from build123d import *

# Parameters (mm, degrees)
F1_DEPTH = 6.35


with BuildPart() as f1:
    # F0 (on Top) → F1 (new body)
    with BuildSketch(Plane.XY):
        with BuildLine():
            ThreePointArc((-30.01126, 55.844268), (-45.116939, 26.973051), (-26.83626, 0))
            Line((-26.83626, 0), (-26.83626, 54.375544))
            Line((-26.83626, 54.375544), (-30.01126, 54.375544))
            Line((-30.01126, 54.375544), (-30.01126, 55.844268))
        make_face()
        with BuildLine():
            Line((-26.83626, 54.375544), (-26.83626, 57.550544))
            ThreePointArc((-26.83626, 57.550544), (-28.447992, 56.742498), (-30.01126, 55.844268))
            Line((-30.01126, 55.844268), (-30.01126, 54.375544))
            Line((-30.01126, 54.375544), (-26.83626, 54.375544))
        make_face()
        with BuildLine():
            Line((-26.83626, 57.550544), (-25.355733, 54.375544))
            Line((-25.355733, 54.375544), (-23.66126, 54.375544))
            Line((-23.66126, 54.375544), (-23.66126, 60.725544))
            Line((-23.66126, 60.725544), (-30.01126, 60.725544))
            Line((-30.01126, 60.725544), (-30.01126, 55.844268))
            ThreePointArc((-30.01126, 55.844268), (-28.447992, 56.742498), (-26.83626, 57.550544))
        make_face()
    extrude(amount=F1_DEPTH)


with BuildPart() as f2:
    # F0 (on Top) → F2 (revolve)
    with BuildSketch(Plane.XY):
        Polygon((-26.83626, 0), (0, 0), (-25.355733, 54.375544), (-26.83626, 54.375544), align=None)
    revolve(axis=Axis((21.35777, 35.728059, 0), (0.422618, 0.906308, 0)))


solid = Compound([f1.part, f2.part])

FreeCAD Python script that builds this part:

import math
import FreeCAD as App
import Part
import Sketcher
from FreeCAD import Vector
Q = App.Units.Quantity

doc = App.newDocument("Part")
params = doc.addObject("Spreadsheet::Sheet", "Params")
for row, (alias, value) in enumerate([
    ("sketch1_radius", "1.25 in"),
    ("sketch1_width", "0.25 in"),
    ("pad1_length", "0.25 in"),
    ("revolution_angle", "360 deg"),
], start=1):
    params.set(f"A{row}", alias)
    params.set(f"B{row}", "=" + value)
    params.setAlias(f"B{row}", alias)

body = doc.addObject("PartDesign::Body", "Body")

sketch1 = doc.addObject("Sketcher::SketchObject", "Sketch")
body.addObject(sketch1)
sketch1.AttachmentSupport = (doc.XY_Plane, [""])
sketch1.MapMode = "FlatFace"
sketch1.addGeometry(Part.ArcOfCircle(Part.Circle(Vector(-13.41813, 28.775272, 0), Vector(0, 0, 1), 31.75), math.radians(121.508044), math.radians(244.999999)), False)
sketch1.addGeometry(Part.LineSegment(Vector(-26.83626, 0, 0), Vector(-26.83626, 57.550544, 0)), False)
sketch1.addGeometry(Part.LineSegment(Vector(-26.83626, 57.550544, 0), Vector(-25.355733, 54.375544, 0)), False)
sketch1.addGeometry(Part.LineSegment(Vector(-25.355733, 54.375544, 0), Vector(-23.66126, 54.375544, 0)), False)
sketch1.addGeometry(Part.LineSegment(Vector(-23.66126, 54.375544, 0), Vector(-23.66126, 60.725544, 0)), False)
sketch1.addGeometry(Part.LineSegment(Vector(-23.66126, 60.725544, 0), Vector(-30.01126, 60.725544, 0)), False)
sketch1.addGeometry(Part.LineSegment(Vector(-30.01126, 60.725544, 0), Vector(-30.01126, 55.844268, 0)), False)
sketch1.addConstraint(Sketcher.Constraint("Coincident", 0, 2, 1, 1))
sketch1.addConstraint(Sketcher.Constraint("Coincident", 1, 2, 2, 1))
sketch1.addConstraint(Sketcher.Constraint("Coincident", 2, 2, 3, 1))
sketch1.addConstraint(Sketcher.Constraint("Coincident", 3, 2, 4, 1))
sketch1.addConstraint(Sketcher.Constraint("Coincident", 4, 2, 5, 1))
sketch1.addConstraint(Sketcher.Constraint("Coincident", 5, 2, 6, 1))
sketch1.addConstraint(Sketcher.Constraint("Coincident", 6, 2, 0, 1))
sketch1.addConstraint(Sketcher.Constraint("Vertical", 1))
sketch1.addConstraint(Sketcher.Constraint("Horizontal", 3))
sketch1.addConstraint(Sketcher.Constraint("Vertical", 4))
sketch1.addConstraint(Sketcher.Constraint("Horizontal", 5))
sketch1.addConstraint(Sketcher.Constraint("Vertical", 6))
sketch1.addConstraint(Sketcher.Constraint("PointOnObject", 0, 2, -1))
sketch1.addConstraint(Sketcher.Constraint("Equal", 5, 4))
sketch1.addConstraint(Sketcher.Constraint("Radius", 0, Q("1.25 in")))
sketch1.addConstraint(Sketcher.Constraint("Angle", 2, Q("-64.999997 deg")))
sketch1.addConstraint(Sketcher.Constraint("DistanceX", 5, 2, 5, 1, Q("0.25 in")))
sketch1.addConstraint(Sketcher.Constraint("DistanceY", 2, 2, 1, 2, Q("0.125 in")))
sketch1.addConstraint(Sketcher.Constraint("DistanceX", 1, 2, 3, 2, Q("0.125 in")))
sketch1.addConstraint(Sketcher.Constraint("DistanceY", 1, 1, 1, 2, 57.550544))
sketch1.addConstraint(Sketcher.Constraint("DistanceY", 6, 2, 6, 1, 4.881276))
sketch1.addConstraint(Sketcher.Constraint("DistanceX", 0, 3, -1, 1, 13.41813))
sketch1.setExpression("Constraints[14]", "Params.sketch1_radius")
sketch1.setExpression("Constraints[16]", "Params.sketch1_width")
pad1 = doc.addObject("PartDesign::Pad", "Pad")
body.addObject(pad1)
pad1.Profile = sketch1
pad1.setExpression("Length", "Params.pad1_length")
body2 = doc.addObject("PartDesign::Body", "Body001")

sketch2 = doc.addObject("Sketcher::SketchObject", "Sketch001")
body2.addObject(sketch2)
sketch2.AttachmentSupport = (doc.getObject("XY_Plane001"), [""])
sketch2.MapMode = "FlatFace"
sketch2.addGeometry(Part.LineSegment(Vector(-26.83626, 0, 0), Vector(0, 0, 0)), False)
sketch2.addGeometry(Part.LineSegment(Vector(0, 0, 0), Vector(-25.355733, 54.375544, 0)), False)
sketch2.addGeometry(Part.LineSegment(Vector(-25.355733, 54.375544, 0), Vector(-26.83626, 54.375544, 0)), False)
sketch2.addGeometry(Part.LineSegment(Vector(-26.83626, 54.375544, 0), Vector(-26.83626, 0, 0)), False)
sketch2.addGeometry(Part.LineSegment(Vector(-0.934603, -12.078131, 0), Vector(20.156858, 33.152692, 0)), True)
sketch2.addConstraint(Sketcher.Constraint("Coincident", 0, 2, 1, 1))
sketch2.addConstraint(Sketcher.Constraint("Coincident", 1, 2, 2, 1))
sketch2.addConstraint(Sketcher.Constraint("Coincident", 2, 2, 3, 1))
sketch2.addConstraint(Sketcher.Constraint("Coincident", 3, 2, 0, 1))
sketch2.addConstraint(Sketcher.Constraint("Horizontal", 0))
sketch2.addConstraint(Sketcher.Constraint("Horizontal", 2))
sketch2.addConstraint(Sketcher.Constraint("Vertical", 3))
sketch2.addConstraint(Sketcher.Constraint("Coincident", 0, 2, -1, 1))
sketch2.addConstraint(Sketcher.Constraint("Angle", 1, Q("115 deg")))
sketch2.addConstraint(Sketcher.Constraint("Angle", 4, Q("65.000019 deg")))
sketch2.addConstraint(Sketcher.Constraint("DistanceX", 0, 1, 0, 2, 26.83626))
sketch2.addConstraint(Sketcher.Constraint("DistanceX", 2, 2, 2, 1, 1.480527))
sketch2.addConstraint(Sketcher.Constraint("DistanceY", 4, 1, -1, 1, 12.078131))
sketch2.addConstraint(Sketcher.Constraint("DistanceX", 1, 2, 4, 1, 24.42113))
sketch2.addConstraint(Sketcher.Constraint("DistanceX", 4, 1, 4, 2, 21.091461))
revolution = doc.addObject("PartDesign::Revolution", "Revolution")
body2.addObject(revolution)
revolution.Profile = sketch2
revolution.ReferenceAxis = (sketch2, ["Axis0"])
revolution.setExpression("Angle", "Params.revolution_angle")

doc.recompute()
